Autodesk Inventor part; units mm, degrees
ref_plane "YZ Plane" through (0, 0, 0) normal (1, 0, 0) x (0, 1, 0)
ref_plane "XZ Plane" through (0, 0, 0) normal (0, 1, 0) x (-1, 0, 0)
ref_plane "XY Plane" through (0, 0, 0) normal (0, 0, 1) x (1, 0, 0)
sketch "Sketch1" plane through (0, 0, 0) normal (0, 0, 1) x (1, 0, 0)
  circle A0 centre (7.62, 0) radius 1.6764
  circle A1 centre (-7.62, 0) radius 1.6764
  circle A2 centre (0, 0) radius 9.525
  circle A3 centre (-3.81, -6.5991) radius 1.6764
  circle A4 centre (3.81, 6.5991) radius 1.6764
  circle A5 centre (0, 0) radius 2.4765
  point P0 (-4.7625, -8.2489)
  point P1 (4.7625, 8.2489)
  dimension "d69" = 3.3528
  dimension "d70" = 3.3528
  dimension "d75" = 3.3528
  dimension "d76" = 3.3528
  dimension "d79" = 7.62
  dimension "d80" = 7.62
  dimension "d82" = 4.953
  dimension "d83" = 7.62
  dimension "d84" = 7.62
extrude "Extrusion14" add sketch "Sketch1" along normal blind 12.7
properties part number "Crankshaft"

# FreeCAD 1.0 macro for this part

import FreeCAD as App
import Part
import Sketcher

V = App.Vector
Q = App.Units.Quantity

doc = App.newDocument("Part")
body = doc.addObject("PartDesign::Body", "Body")

# Sketch on XY plane
sketch1 = body.newObject("Sketcher::SketchObject", "Sketch")
sketch1.AttachmentSupport = (doc.getObject("XY_Plane"), [""])
sketch1.MapMode = "FlatFace"
sketch1.addGeometry([
    Part.Circle(V(0, 0, 0), V(0, 0, 1), 9.5),  # 0
    Part.Circle(V(-3.8, -6.6, 0), V(0, 0, 1), 1.7),  # 1
    Part.Circle(V(-7.6, 0, 0), V(0, 0, 1), 1.7),  # 2
    Part.Circle(V(0, 0, 0), V(0, 0, 1), 2.5),  # 3
    Part.Circle(V(7.6, 0, 0), V(0, 0, 1), 1.7),  # 4
    Part.Circle(V(3.8, 6.6, 0), V(0, 0, 1), 1.7),  # 5
], False)
sketch1.addConstraint([
    Sketcher.Constraint("Coincident", 0, 3, -1, 1),
    Sketcher.Constraint("Coincident", 3, 3, -1, 1),
    Sketcher.Constraint("Equal", 1, 2),
    Sketcher.Constraint("Equal", 2, 4),
    Sketcher.Constraint("Equal", 4, 5),
    Sketcher.Constraint("Symmetric", 2, 3, 4, 3, -1, 1),
    Sketcher.Constraint("Symmetric", 1, 3, 5, 3, -1, 1),
    Sketcher.Constraint("PointOnObject", 2, 3, -1),
    Sketcher.Constraint("Diameter", 1, Q("0.132 in")),
    Sketcher.Constraint("Diameter", 3, Q("0.195 in")),
    Sketcher.Constraint("DistanceX", 2, 3, -1, 1, Q("0.3 in")),
    Sketcher.Constraint("DistanceX", 1, 3, 5, 3, Q("0.3 in")),
    Sketcher.Constraint("Diameter", 0, Q("0.75 in")),
    Sketcher.Constraint("DistanceY", 1, 3, -1, 1, Q("0.2598 in")),
])
pad1 = body.newObject("PartDesign::Pad", "Pad")
pad1.Profile = sketch1
pad1.Length = Q("0.5 in")

doc.recompute()
